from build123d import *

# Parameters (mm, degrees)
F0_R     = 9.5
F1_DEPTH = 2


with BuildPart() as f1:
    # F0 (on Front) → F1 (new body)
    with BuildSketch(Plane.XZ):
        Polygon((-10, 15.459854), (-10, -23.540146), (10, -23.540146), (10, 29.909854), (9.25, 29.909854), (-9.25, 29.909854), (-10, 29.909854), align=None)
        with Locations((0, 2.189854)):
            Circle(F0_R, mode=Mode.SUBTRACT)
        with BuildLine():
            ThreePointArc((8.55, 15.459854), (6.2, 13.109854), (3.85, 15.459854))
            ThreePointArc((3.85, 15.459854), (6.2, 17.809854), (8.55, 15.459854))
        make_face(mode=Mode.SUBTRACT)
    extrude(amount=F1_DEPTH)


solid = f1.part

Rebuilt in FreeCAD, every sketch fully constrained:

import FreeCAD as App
import Part
import Sketcher
from FreeCAD import Vector
Q = App.Units.Quantity

doc = App.newDocument("Part")
body = doc.addObject("PartDesign::Body", "Body")

# Sketch on XZ plane
sketch1 = doc.addObject("Sketcher::SketchObject", "Sketch")
body.addObject(sketch1)
sketch1.AttachmentSupport = (doc.XZ_Plane, [""])
sketch1.MapMode = "FlatFace"
sketch1.addGeometry(Part.LineSegment(Vector(-10, -23.540146, 0), Vector(10, -23.540146, 0)), False)
sketch1.addGeometry(Part.LineSegment(Vector(10, -23.540146, 0), Vector(10, 29.909854, 0)), False)
sketch1.addGeometry(Part.LineSegment(Vector(10, 29.909854, 0), Vector(-10, 29.909854, 0)), False)
sketch1.addGeometry(Part.LineSegment(Vector(-10, 29.909854, 0), Vector(-10, -23.540146, 0)), False)
sketch1.addGeometry(Part.Circle(Vector(0, 2.189854, 0), Vector(0, 0, 1), 9.5), False)
sketch1.addGeometry(Part.Circle(Vector(6.2, 15.459854, 0), Vector(0, 0, 1), 2.35), False)
sketch1.addConstraint(Sketcher.Constraint("Coincident", 0, 2, 1, 1))
sketch1.addConstraint(Sketcher.Constraint("Coincident", 1, 2, 2, 1))
sketch1.addConstraint(Sketcher.Constraint("Coincident", 2, 2, 3, 1))
sketch1.addConstraint(Sketcher.Constraint("Coincident", 3, 2, 0, 1))
sketch1.addConstraint(Sketcher.Constraint("Horizontal", 0))
sketch1.addConstraint(Sketcher.Constraint("Vertical", 1))
sketch1.addConstraint(Sketcher.Constraint("Horizontal", 2))
sketch1.addConstraint(Sketcher.Constraint("Vertical", 3))
sketch1.addConstraint(Sketcher.Constraint("PointOnObject", 4, 3, -2))
sketch1.addConstraint(Sketcher.Constraint("Diameter", 4, Q("19 mm")))
sketch1.addConstraint(Sketcher.Constraint("Diameter", 5, Q("4.7 mm")))
sketch1.addConstraint(Sketcher.Constraint("DistanceX", 0, 1, 0, 2, Q("20 mm")))
sketch1.addConstraint(Sketcher.Constraint("DistanceX", -1, 1, 0, 2, Q("10 mm")))
sketch1.addConstraint(Sketcher.Constraint("DistanceY", 0, 2, 5, 3, Q("39 mm")))
sketch1.addConstraint(Sketcher.Constraint("DistanceY", 1, 1, 1, 2, Q("53.45 mm")))
sketch1.addConstraint(Sketcher.Constraint("DistanceX", -1, 1, 5, 3, Q("6.2 mm")))
sketch1.addConstraint(Sketcher.Constraint("DistanceY", 4, 3, 5, 3, Q("13.27 mm")))
sketch1.addConstraint(Sketcher.Constraint("DistanceY", -1, 1, 4, 3, Q("2.189854 mm")))
pad1 = doc.addObject("PartDesign::Pad", "Pad")
body.addObject(pad1)
pad1.Profile = sketch1
pad1.Length = 2

doc.recompute()
